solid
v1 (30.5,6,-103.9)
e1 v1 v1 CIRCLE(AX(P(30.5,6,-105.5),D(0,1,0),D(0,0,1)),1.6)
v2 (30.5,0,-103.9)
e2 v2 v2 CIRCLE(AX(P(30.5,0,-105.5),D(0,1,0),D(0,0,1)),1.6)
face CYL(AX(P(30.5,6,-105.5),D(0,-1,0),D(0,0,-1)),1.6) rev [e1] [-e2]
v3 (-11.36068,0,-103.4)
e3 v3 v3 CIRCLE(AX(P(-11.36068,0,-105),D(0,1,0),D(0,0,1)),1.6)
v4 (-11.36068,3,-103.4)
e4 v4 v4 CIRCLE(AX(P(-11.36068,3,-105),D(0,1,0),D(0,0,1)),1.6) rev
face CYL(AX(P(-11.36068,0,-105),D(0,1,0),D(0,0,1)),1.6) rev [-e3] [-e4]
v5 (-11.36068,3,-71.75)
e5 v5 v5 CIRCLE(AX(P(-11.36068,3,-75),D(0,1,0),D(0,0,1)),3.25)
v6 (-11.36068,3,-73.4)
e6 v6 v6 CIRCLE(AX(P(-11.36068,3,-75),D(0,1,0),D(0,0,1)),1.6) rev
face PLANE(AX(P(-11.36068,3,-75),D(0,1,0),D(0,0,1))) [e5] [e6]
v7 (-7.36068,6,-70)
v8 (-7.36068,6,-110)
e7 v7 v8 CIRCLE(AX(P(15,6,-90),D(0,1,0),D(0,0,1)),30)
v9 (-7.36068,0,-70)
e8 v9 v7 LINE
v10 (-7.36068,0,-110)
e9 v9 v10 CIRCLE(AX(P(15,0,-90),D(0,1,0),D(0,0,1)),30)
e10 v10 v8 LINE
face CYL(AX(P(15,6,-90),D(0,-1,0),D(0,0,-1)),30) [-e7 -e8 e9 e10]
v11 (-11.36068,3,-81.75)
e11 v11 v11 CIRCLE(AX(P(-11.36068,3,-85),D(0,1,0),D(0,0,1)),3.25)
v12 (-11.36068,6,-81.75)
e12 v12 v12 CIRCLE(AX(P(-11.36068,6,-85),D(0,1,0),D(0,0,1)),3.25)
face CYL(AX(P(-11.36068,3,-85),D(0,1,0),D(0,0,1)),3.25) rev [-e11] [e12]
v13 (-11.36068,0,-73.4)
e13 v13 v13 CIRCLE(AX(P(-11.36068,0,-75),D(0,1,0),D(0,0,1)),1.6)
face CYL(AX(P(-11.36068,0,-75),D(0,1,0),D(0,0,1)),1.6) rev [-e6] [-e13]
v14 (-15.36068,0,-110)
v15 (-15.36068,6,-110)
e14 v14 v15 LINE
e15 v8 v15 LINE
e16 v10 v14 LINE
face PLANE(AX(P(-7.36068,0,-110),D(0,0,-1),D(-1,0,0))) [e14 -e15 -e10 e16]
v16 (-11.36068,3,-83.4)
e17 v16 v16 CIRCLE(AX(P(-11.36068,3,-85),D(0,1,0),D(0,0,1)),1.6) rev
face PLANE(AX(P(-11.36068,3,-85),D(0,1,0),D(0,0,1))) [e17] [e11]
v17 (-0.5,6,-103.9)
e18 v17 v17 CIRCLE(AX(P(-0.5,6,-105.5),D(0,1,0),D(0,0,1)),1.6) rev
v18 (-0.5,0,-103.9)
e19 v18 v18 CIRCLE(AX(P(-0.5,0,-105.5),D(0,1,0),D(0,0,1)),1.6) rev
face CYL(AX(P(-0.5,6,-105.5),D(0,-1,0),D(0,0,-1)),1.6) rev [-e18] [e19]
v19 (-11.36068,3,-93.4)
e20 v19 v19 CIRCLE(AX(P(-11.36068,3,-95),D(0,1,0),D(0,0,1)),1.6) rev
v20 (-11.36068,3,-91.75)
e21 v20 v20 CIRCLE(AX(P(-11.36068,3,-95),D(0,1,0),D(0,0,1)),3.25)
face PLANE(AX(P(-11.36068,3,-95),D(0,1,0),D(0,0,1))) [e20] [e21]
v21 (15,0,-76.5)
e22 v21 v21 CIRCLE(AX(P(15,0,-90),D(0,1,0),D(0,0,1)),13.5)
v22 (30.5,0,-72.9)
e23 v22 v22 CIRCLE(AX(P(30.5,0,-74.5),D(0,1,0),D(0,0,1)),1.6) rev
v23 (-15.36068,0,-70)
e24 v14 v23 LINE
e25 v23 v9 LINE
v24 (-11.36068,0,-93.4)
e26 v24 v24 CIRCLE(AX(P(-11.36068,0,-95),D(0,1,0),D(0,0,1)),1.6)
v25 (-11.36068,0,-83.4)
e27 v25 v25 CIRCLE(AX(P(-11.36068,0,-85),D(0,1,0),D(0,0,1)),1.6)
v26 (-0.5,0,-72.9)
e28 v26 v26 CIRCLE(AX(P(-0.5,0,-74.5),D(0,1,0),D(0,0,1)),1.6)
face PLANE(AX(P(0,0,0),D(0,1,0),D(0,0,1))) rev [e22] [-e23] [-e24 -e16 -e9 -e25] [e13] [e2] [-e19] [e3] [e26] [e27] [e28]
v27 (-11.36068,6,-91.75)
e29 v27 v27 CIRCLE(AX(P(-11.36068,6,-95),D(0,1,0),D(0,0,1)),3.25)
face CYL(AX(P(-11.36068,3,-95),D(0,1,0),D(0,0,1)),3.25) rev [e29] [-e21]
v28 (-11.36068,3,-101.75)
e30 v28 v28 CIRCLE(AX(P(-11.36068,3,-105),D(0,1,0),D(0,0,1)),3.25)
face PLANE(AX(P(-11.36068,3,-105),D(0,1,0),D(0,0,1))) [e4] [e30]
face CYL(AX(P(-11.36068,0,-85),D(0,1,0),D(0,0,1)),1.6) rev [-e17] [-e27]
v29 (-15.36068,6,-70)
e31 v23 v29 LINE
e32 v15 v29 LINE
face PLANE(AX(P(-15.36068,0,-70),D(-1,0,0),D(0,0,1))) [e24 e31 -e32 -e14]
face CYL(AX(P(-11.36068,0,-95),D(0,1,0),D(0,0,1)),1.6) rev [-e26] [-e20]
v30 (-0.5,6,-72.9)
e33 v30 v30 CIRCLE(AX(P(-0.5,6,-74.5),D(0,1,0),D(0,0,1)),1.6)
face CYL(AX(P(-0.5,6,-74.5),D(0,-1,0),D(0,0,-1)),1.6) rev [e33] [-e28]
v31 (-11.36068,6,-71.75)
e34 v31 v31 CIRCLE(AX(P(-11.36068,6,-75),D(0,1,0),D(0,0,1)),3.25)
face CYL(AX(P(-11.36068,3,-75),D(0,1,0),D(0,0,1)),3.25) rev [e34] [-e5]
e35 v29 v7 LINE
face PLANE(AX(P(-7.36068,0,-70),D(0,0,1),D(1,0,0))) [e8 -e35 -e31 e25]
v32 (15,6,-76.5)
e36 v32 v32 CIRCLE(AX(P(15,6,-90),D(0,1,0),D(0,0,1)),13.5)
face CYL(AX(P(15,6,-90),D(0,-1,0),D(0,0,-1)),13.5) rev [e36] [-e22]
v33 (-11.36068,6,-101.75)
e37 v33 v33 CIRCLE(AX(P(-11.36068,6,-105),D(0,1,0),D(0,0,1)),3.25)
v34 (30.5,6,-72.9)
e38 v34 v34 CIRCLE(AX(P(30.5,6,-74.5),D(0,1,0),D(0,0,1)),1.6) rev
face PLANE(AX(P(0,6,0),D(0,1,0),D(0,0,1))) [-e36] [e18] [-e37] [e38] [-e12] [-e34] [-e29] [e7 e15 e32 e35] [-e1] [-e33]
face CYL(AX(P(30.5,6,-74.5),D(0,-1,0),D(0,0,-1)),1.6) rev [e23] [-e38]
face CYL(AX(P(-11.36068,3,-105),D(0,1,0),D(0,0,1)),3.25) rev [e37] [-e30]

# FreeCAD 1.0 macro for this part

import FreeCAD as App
import Part
import Sketcher
from FreeCAD import Vector
Q = App.Units.Quantity

doc = App.newDocument("Part")
body = doc.addObject("PartDesign::Body", "Body")

# Sketch on XZ plane
sketch1 = body.newObject("Sketcher::SketchObject", "Sketch")
sketch1.AttachmentSupport = (doc.getObject("XZ_Plane"), [""])
sketch1.MapMode = "FlatFace"
sketch1.addGeometry([
    Part.Circle(Vector(15, -90, 0), Vector(0, 0, 1), 30),  # 0
    Part.Circle(Vector(-0.5, -105.5, 0), Vector(0, 0, 1), 1.6),  # 1
    Part.Circle(Vector(-0.5, -74.5, 0), Vector(0, 0, 1), 1.6),  # 2
    Part.Circle(Vector(30.5, -105.5, 0), Vector(0, 0, 1), 1.6),  # 3
    Part.Circle(Vector(15, -90, 0), Vector(0, 0, 1), 13.5),  # 4
    Part.Circle(Vector(30.5, -74.5, 0), Vector(0, 0, 1), 1.6),  # 5
], False)
sketch1.addConstraint([
    Sketcher.Constraint("Coincident", 4, 3, 0, 3),
    Sketcher.Constraint("Equal", 1, 2),
    Sketcher.Constraint("Equal", 2, 3),
    Sketcher.Constraint("Equal", 3, 5),
    Sketcher.Constraint("Horizontal", 1, 3, 3, 3),
    Sketcher.Constraint("Horizontal", 2, 3, 5, 3),
    Sketcher.Constraint("Vertical", 1, 3, 2, 3),
    Sketcher.Constraint("Vertical", 3, 3, 5, 3),
    Sketcher.Constraint("Diameter", 0, Q("60 mm")),
    Sketcher.Constraint("Diameter", 4, Q("27 mm")),
    Sketcher.Constraint("Diameter", 1, Q("3.2 mm")),
    Sketcher.Constraint("DistanceX", -1, 1, 0, 3, Q("15 mm")),
    Sketcher.Constraint("DistanceY", 0, 3, -1, 1, Q("90 mm")),
    Sketcher.Constraint("DistanceY", 1, 3, 2, 3, Q("31 mm")),
    Sketcher.Constraint("DistanceX", 1, 3, 3, 3, Q("31 mm")),
    Sketcher.Constraint("DistanceX", 1, 3, -1, 1, Q("0.5 mm")),
    Sketcher.Constraint("DistanceY", 1, 3, -1, 1, Q("105.5 mm")),
])
pad1 = body.newObject("PartDesign::Pad", "Pad")
pad1.Profile = sketch1
pad1.Length = 6
pad1.Reversed = True

# Sketch on XZ plane
sketch2 = body.newObject("Sketcher::SketchObject", "Sketch001")
sketch2.AttachmentSupport = (doc.getObject("XZ_Plane"), [""])
sketch2.MapMode = "FlatFace"
sketch2.AttachmentOffset = App.Placement(Vector(0, 0, -6), App.Rotation())
sketch2.addGeometry([
    Part.LineSegment(Vector(-15.36068, -110, 0), Vector(-15.36068, -70, 0)),
    Part.LineSegment(Vector(-15.36068, -70, 0), Vector(-7.36068, -70, 0)),
    Part.LineSegment(Vector(-7.36068, -70, 0), Vector(-7.36068, -110, 0)),
    Part.LineSegment(Vector(-7.36068, -110, 0), Vector(-15.36068, -110, 0)),
], False)
sketch2.addConstraint([
    Sketcher.Constraint("Coincident", 0, 2, 1, 1),
    Sketcher.Constraint("Coincident", 1, 2, 2, 1),
    Sketcher.Constraint("Coincident", 2, 2, 3, 1),
    Sketcher.Constraint("Coincident", 3, 2, 0, 1),
    Sketcher.Constraint("Vertical", 0),
    Sketcher.Constraint("Horizontal", 1),
    Sketcher.Constraint("Vertical", 2),
    Sketcher.Constraint("Horizontal", 3),
    Sketcher.Constraint("DistanceX", 1, 1, 1, 2, Q("8 mm")),
    Sketcher.Constraint("DistanceY", 0, 1, 0, 2, Q("40 mm")),
    Sketcher.Constraint("DistanceY", 0, 2, -1, 1, Q("70 mm")),
    Sketcher.Constraint("DistanceX", 0, 2, -1, 1, Q("15.36068 mm")),
])
pad2 = body.newObject("PartDesign::Pad", "Pad001")
pad2.Profile = sketch2
pad2.Length = 6

# Sketch on XZ plane
sketch3 = body.newObject("Sketcher::SketchObject", "Sketch002")
sketch3.AttachmentSupport = (doc.getObject("XZ_Plane"), [""])
sketch3.MapMode = "FlatFace"
sketch3.AttachmentOffset = App.Placement(Vector(0, 0, -6), App.Rotation())
sketch3.addGeometry([
    Part.Circle(Vector(-11.36068, -105, 0), Vector(0, 0, 1), 1.6),
    Part.Circle(Vector(-11.36068, -95, 0), Vector(0, 0, 1), 1.6),
    Part.Circle(Vector(-11.36068, -85, 0), Vector(0, 0, 1), 1.6),
    Part.Circle(Vector(-11.36068, -75, 0), Vector(0, 0, 1), 1.6),
], False)
sketch3.addConstraint([
    Sketcher.Constraint("Equal", 0, 1),
    Sketcher.Constraint("Equal", 1, 2),
    Sketcher.Constraint("Equal", 2, 3),
    Sketcher.Constraint("Vertical", 0, 3, 1, 3),
    Sketcher.Constraint("Vertical", 1, 3, 2, 3),
    Sketcher.Constraint("Vertical", 2, 3, 3, 3),
    Sketcher.Constraint("Diameter", 0, Q("3.2 mm")),
    Sketcher.Constraint("DistanceY", 0, 3, -1, 1, Q("105 mm")),
    Sketcher.Constraint("DistanceY", 1, 3, -1, 1, Q("95 mm")),
    Sketcher.Constraint("DistanceY", 2, 3, -1, 1, Q("85 mm")),
    Sketcher.Constraint("DistanceY", 3, 3, -1, 1, Q("75 mm")),
    Sketcher.Constraint("DistanceX", 0, 3, -1, 1, Q("11.36068 mm")),
])
pocket1 = body.newObject("PartDesign::Pocket", "Pocket")
pocket1.Profile = sketch3
pocket1.Length = 6
pocket1.Reversed = True

# Sketch on XZ plane
sketch4 = body.newObject("Sketcher::SketchObject", "Sketch003")
sketch4.AttachmentSupport = (doc.getObject("XZ_Plane"), [""])
sketch4.MapMode = "FlatFace"
sketch4.AttachmentOffset = App.Placement(Vector(0, 0, -6), App.Rotation())
sketch4.addGeometry([
    Part.Circle(Vector(-11.36068, -105, 0), Vector(0, 0, 1), 3.25),
    Part.Circle(Vector(-11.36068, -95, 0), Vector(0, 0, 1), 3.25),
    Part.Circle(Vector(-11.36068, -85, 0), Vector(0, 0, 1), 3.25),
    Part.Circle(Vector(-11.36068, -75, 0), Vector(0, 0, 1), 3.25),
], False)
sketch4.addConstraint([
    Sketcher.Constraint("Equal", 0, 1),
    Sketcher.Constraint("Equal", 1, 2),
    Sketcher.Constraint("Equal", 2, 3),
    Sketcher.Constraint("Vertical", 0, 3, 1, 3),
    Sketcher.Constraint("Vertical", 1, 3, 2, 3),
    Sketcher.Constraint("Vertical", 2, 3, 3, 3),
    Sketcher.Constraint("Diameter", 0, Q("6.5 mm")),
    Sketcher.Constraint("DistanceY", 0, 3, -1, 1, Q("105 mm")),
    Sketcher.Constraint("DistanceY", 1, 3, -1, 1, Q("95 mm")),
    Sketcher.Constraint("DistanceY", 2, 3, -1, 1, Q("85 mm")),
    Sketcher.Constraint("DistanceY", 3, 3, -1, 1, Q("75 mm")),
    Sketcher.Constraint("DistanceX", 0, 3, -1, 1, Q("11.36068 mm")),
])
pocket2 = body.newObject("PartDesign::Pocket", "Pocket001")
pocket2.Profile = sketch4
pocket2.Length = 3
pocket2.Reversed = True

doc.recompute()
